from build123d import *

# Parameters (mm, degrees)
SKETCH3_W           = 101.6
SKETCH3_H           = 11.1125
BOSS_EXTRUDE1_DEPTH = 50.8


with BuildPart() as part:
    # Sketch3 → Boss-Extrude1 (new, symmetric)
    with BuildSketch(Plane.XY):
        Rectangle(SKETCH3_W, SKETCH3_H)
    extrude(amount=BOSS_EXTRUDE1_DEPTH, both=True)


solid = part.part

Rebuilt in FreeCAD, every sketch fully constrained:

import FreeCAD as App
import Part
import Sketcher
from FreeCAD import Vector
Q = App.Units.Quantity


def add_polygon(sketch, points):
    """Adds a closed chain of lines whose ends are joined by coincident constraints."""
    first, n = sketch.GeometryCount, len(points)
    for a, b in zip(points, points[1:] + points[:1]):
        sketch.addGeometry(Part.LineSegment(App.Vector(*a, 0), App.Vector(*b, 0)), False)
    for i in range(n):
        sketch.addConstraint(Sketcher.Constraint("Coincident", first + i, 2, first + (i + 1) % n, 1))

doc = App.newDocument("Part")
body = doc.addObject("PartDesign::Body", "Body")

sketch1 = body.newObject("Sketcher::SketchObject", "Sketch")
sketch1.AttachmentSupport = (doc.getObject("XY_Plane"), [""])
sketch1.MapMode = "FlatFace"
add_polygon(sketch1, [(-51, 6), (-51, -6), (51, -6), (51, 6)])
sketch1.addConstraint([
    Sketcher.Constraint("Vertical", 0),
    Sketcher.Constraint("Horizontal", 1),
    Sketcher.Constraint("Vertical", 2),
    Sketcher.Constraint("Horizontal", 3),
    Sketcher.Constraint("Symmetric", 0, 2, 2, 2, -1, 1),
    Sketcher.Constraint("DistanceX", 1, 1, 1, 2, Q("4 in")),
    Sketcher.Constraint("DistanceY", 0, 2, 0, 1, Q("0.4375 in")),
])
pad1 = body.newObject("PartDesign::Pad", "Pad")
pad1.Profile = sketch1
pad1.Length = Q("4 in")
pad1.Midplane = True

doc.recompute()
